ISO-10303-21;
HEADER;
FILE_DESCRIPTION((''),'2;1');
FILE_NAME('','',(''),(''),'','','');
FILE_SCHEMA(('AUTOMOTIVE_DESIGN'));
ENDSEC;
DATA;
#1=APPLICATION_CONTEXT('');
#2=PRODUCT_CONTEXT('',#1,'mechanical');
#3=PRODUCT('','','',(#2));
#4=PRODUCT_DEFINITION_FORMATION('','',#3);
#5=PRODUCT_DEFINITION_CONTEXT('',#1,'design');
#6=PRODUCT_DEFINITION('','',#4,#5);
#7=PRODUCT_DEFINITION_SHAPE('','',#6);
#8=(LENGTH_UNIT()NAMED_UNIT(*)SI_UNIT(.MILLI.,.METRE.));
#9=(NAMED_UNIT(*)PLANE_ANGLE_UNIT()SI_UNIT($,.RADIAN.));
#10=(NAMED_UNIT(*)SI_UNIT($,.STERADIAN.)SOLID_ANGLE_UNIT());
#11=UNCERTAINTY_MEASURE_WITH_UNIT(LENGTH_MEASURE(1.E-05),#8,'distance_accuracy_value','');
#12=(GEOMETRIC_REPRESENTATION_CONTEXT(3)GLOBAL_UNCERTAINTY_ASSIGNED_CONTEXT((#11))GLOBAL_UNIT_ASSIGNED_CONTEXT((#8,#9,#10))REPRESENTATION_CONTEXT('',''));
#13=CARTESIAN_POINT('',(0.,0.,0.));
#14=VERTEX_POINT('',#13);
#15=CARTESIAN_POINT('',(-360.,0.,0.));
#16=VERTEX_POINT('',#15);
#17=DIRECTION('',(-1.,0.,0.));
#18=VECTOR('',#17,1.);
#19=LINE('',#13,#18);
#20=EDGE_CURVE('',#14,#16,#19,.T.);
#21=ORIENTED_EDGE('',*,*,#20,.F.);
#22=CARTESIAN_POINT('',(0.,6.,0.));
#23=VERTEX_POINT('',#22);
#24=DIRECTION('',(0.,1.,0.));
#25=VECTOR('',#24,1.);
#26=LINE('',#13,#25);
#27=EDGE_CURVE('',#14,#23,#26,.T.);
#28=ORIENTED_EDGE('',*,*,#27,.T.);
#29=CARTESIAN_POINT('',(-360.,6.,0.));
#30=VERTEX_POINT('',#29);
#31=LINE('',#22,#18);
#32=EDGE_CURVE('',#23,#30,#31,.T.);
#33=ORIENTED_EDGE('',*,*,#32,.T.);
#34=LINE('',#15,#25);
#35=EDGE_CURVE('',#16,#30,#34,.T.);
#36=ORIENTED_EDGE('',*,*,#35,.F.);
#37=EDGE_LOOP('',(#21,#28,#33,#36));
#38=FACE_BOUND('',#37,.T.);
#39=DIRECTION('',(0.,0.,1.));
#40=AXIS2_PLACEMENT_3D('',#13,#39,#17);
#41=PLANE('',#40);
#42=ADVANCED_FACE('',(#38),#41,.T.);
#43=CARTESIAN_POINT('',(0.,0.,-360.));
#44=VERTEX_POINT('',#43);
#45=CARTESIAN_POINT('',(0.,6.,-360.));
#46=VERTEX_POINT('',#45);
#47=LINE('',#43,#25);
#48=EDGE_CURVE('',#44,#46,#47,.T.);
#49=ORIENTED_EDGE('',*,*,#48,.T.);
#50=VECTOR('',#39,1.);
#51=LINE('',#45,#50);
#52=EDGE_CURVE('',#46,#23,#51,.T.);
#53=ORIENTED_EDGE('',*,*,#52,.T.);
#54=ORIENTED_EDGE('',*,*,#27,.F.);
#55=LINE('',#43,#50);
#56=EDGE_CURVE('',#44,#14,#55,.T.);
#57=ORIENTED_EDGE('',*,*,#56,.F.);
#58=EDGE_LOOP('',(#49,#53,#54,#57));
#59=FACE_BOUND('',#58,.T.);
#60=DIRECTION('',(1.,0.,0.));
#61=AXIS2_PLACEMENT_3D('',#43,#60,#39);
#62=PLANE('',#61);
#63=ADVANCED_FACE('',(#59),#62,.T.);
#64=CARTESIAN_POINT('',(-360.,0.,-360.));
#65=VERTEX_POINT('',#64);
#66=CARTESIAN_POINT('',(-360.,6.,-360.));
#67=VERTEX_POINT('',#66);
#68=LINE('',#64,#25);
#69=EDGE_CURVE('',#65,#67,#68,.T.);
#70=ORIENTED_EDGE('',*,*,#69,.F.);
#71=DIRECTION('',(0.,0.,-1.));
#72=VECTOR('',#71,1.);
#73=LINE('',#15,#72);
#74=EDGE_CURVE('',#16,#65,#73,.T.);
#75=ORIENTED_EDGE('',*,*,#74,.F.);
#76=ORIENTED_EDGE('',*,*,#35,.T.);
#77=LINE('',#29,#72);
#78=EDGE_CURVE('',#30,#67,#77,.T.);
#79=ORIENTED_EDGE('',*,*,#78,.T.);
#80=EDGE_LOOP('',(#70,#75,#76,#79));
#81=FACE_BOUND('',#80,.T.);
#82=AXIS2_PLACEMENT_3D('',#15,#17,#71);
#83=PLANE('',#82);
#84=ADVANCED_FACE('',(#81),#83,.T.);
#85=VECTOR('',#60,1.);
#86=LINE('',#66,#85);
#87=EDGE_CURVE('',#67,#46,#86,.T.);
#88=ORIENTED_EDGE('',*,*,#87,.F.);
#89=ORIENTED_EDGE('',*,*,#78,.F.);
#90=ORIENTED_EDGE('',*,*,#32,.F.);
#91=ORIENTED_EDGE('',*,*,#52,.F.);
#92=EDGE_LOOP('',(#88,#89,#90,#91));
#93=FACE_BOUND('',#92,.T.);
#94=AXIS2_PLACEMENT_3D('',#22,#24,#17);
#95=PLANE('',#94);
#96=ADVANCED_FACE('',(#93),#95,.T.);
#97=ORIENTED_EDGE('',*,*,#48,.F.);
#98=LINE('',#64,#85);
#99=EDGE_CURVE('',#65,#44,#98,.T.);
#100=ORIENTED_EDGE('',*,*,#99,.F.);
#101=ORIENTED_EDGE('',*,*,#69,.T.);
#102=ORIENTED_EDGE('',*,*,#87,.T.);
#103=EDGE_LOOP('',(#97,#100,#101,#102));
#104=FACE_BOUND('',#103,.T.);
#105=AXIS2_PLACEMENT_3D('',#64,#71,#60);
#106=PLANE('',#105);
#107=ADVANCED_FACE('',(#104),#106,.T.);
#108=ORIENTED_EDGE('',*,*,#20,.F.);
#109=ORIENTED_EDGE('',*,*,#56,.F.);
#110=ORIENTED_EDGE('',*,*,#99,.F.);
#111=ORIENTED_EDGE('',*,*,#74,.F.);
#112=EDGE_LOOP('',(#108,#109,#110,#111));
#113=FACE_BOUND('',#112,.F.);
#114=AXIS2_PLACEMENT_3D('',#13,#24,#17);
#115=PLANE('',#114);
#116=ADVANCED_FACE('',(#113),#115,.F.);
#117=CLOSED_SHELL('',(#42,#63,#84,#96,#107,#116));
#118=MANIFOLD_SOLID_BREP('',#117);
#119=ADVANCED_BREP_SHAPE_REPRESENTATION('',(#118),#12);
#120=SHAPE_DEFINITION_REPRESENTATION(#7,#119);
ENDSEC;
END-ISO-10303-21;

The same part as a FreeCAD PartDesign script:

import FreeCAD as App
import Part
import Sketcher

V = App.Vector


def add_polygon(sketch, points):
    """Adds a closed chain of lines whose ends are joined by coincident constraints."""
    first, n = sketch.GeometryCount, len(points)
    for a, b in zip(points, points[1:] + points[:1]):
        sketch.addGeometry(Part.LineSegment(App.Vector(*a, 0), App.Vector(*b, 0)), False)
    for i in range(n):
        sketch.addConstraint(Sketcher.Constraint("Coincident", first + i, 2, first + (i + 1) % n, 1))

doc = App.newDocument("Part")
body = doc.addObject("PartDesign::Body", "Body")

# Sketch on XZ plane
sketch1 = body.newObject("Sketcher::SketchObject", "Sketch")
sketch1.AttachmentSupport = (doc.getObject("XZ_Plane"), [""])
sketch1.MapMode = "FlatFace"
add_polygon(sketch1, [(-360, 0), (0, 0), (0, -360), (-360, -360)])  # lines 0-3
sketch1.addConstraint([
    Sketcher.Constraint("Horizontal", 0),
    Sketcher.Constraint("Vertical", 1),
    Sketcher.Constraint("Horizontal", 2),
    Sketcher.Constraint("Vertical", 3),
    Sketcher.Constraint("Coincident", 0, 2, -1, 1),
    Sketcher.Constraint("Equal", 2, 1),
    Sketcher.Constraint("DistanceX", 0, 1, 0, 2, 360.0),
])
pad1 = body.newObject("PartDesign::Pad", "Pad")
pad1.Profile = sketch1
pad1.Length = 6
pad1.Reversed = True

doc.recompute()
